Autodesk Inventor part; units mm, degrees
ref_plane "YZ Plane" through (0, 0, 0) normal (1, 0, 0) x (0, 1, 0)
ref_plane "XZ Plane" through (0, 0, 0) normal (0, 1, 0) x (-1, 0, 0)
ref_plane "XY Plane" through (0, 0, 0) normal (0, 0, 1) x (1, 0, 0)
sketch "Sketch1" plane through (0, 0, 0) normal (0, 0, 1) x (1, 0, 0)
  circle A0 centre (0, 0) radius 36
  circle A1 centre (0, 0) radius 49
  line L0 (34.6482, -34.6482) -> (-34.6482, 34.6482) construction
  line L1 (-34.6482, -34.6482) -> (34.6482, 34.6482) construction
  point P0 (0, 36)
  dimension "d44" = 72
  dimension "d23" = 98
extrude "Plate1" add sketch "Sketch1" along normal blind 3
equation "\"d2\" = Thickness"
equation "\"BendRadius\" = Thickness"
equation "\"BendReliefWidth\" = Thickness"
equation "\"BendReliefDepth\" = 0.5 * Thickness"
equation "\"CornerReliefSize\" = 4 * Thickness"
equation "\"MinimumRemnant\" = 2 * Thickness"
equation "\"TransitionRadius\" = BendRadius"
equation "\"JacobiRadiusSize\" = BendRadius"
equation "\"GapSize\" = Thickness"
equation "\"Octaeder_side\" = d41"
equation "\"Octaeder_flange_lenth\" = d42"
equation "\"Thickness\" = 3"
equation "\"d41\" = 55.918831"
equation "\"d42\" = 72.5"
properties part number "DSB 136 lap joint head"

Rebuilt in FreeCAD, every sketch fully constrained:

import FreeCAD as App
import Part
import Sketcher
Q = App.Units.Quantity

doc = App.newDocument("Part")
params = doc.addObject("Spreadsheet::Sheet", "Params")
for row, (alias, value) in enumerate([
    ("sketch1_diameter", "98 mm"),
    ("sketch1_diameter2", "72 mm"),
    ("pad1_length", "3 mm"),
], start=1):
    params.set(f"A{row}", alias)
    params.set(f"B{row}", "=" + value)
    params.setAlias(f"B{row}", alias)

body = doc.addObject("PartDesign::Body", "Body")

sketch1 = doc.addObject("Sketcher::SketchObject", "Sketch")
body.addObject(sketch1)
sketch1.AttachmentSupport = (doc.XY_Plane, [""])
sketch1.MapMode = "FlatFace"
sketch1.addGeometry([
    Part.Circle(App.Vector(0, 0, 0), App.Vector(0, 0, 1), 49),
    Part.Circle(App.Vector(0, 0, 0), App.Vector(0, 0, 1), 36),
], False)
sketch1.addConstraint([
    Sketcher.Constraint("Coincident", 0, 3, -1, 1),
    Sketcher.Constraint("Coincident", 1, 3, -1, 1),
    Sketcher.Constraint("Diameter", 0, Q("98 mm")),
    Sketcher.Constraint("Diameter", 1, Q("72 mm")),
])
sketch1.setExpression("Constraints[2]", "Params.sketch1_diameter")
sketch1.setExpression("Constraints[3]", "Params.sketch1_diameter2")
pad1 = doc.addObject("PartDesign::Pad", "Pad")
body.addObject(pad1)
pad1.Profile = sketch1
pad1.setExpression("Length", "Params.pad1_length")

doc.recompute()
